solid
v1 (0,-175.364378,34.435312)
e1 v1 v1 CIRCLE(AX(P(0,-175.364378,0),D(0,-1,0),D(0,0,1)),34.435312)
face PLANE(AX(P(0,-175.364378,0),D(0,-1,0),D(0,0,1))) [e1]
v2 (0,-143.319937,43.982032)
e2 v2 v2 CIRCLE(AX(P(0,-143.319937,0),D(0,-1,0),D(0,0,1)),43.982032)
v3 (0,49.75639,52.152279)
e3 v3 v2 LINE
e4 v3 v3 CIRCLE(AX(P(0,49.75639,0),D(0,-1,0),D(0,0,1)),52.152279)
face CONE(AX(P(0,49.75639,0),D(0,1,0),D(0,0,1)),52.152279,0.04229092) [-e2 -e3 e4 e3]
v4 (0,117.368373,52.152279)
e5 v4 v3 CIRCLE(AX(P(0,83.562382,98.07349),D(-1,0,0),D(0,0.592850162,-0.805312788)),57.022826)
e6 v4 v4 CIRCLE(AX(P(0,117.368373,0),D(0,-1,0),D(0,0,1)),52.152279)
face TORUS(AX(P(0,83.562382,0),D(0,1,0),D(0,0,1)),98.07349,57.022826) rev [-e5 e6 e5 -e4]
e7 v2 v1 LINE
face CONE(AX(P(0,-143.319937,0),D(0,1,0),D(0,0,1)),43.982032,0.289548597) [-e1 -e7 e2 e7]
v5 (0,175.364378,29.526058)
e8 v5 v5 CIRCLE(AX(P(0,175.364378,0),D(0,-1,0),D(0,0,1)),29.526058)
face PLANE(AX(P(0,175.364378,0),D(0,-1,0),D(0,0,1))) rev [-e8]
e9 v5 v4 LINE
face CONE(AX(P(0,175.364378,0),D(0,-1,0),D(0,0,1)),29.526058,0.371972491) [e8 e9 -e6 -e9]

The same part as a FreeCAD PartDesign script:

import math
import FreeCAD as App
import Part
import Sketcher

V = App.Vector
Q = App.Units.Quantity

doc = App.newDocument("Part")
body = doc.addObject("PartDesign::Body", "Body")

sketch1 = body.newObject("Sketcher::SketchObject", "Sketch")
sketch1.AttachmentSupport = (doc.getObject("YZ_Plane"), [""])
sketch1.MapMode = "FlatFace"
sketch1.addGeometry([
    Part.LineSegment(V(-175.364378, 0, 0), V(175.364378, 0, 0)),
    Part.LineSegment(V(175.364378, 0, 0), V(175.364378, 29.526058, 0)),
    Part.LineSegment(V(175.364378, 29.526058, 0), V(117.368373, 52.152279, 0)),
    Part.ArcOfCircle(Part.Circle(V(83.562382, 98.07349, 0), V(0, 0, 1), 57.022826), math.radians(-126.359526), math.radians(-53.640474)),
    Part.LineSegment(V(49.75639, 52.152279, 0), V(-143.319937, 43.982032, 0)),
    Part.LineSegment(V(-143.319937, 43.982032, 0), V(-175.364378, 34.435312, 0)),
    Part.LineSegment(V(-175.364378, 34.435312, 0), V(-175.364378, 0, 0)),
], False)
sketch1.addConstraint([
    Sketcher.Constraint("Coincident", 0, 2, 1, 1),
    Sketcher.Constraint("Coincident", 1, 2, 2, 1),
    Sketcher.Constraint("Coincident", 2, 2, 3, 2),
    Sketcher.Constraint("Coincident", 3, 1, 4, 1),
    Sketcher.Constraint("Coincident", 4, 2, 5, 1),
    Sketcher.Constraint("Coincident", 5, 2, 6, 1),
    Sketcher.Constraint("Coincident", 6, 2, 0, 1),
    Sketcher.Constraint("Horizontal", 0),
    Sketcher.Constraint("Vertical", 1),
    Sketcher.Constraint("Vertical", 6),
    Sketcher.Constraint("Symmetric", 0, 2, 6, 2, -1, 1),
    Sketcher.Constraint("Horizontal", 2, 2, 3, 1),
    Sketcher.Constraint("Radius", 3, Q("57.022826 mm")),
    Sketcher.Constraint("Distance", 5, Q("33.436299 mm")),
    Sketcher.Constraint("DistanceX", 0, 1, 0, 2, Q("350.728756 mm")),
    Sketcher.Constraint("DistanceY", 1, 1, 1, 2, Q("29.526058 mm")),
    Sketcher.Constraint("DistanceY", 6, 2, 6, 1, Q("34.435312 mm")),
    Sketcher.Constraint("DistanceX", -1, 1, 3, 3, Q("83.562382 mm")),
    Sketcher.Constraint("DistanceY", -1, 1, 3, 3, Q("98.07349 mm")),
    Sketcher.Constraint("DistanceY", -1, 1, 2, 2, Q("52.152279 mm")),
    Sketcher.Constraint("DistanceY", -1, 1, 4, 2, Q("43.982032 mm")),
])
revolution = body.newObject("PartDesign::Revolution", "Revolution")
revolution.Profile = sketch1
revolution.ReferenceAxis = (sketch1, ["H_Axis"])
revolution.Angle = 360

doc.recompute()
